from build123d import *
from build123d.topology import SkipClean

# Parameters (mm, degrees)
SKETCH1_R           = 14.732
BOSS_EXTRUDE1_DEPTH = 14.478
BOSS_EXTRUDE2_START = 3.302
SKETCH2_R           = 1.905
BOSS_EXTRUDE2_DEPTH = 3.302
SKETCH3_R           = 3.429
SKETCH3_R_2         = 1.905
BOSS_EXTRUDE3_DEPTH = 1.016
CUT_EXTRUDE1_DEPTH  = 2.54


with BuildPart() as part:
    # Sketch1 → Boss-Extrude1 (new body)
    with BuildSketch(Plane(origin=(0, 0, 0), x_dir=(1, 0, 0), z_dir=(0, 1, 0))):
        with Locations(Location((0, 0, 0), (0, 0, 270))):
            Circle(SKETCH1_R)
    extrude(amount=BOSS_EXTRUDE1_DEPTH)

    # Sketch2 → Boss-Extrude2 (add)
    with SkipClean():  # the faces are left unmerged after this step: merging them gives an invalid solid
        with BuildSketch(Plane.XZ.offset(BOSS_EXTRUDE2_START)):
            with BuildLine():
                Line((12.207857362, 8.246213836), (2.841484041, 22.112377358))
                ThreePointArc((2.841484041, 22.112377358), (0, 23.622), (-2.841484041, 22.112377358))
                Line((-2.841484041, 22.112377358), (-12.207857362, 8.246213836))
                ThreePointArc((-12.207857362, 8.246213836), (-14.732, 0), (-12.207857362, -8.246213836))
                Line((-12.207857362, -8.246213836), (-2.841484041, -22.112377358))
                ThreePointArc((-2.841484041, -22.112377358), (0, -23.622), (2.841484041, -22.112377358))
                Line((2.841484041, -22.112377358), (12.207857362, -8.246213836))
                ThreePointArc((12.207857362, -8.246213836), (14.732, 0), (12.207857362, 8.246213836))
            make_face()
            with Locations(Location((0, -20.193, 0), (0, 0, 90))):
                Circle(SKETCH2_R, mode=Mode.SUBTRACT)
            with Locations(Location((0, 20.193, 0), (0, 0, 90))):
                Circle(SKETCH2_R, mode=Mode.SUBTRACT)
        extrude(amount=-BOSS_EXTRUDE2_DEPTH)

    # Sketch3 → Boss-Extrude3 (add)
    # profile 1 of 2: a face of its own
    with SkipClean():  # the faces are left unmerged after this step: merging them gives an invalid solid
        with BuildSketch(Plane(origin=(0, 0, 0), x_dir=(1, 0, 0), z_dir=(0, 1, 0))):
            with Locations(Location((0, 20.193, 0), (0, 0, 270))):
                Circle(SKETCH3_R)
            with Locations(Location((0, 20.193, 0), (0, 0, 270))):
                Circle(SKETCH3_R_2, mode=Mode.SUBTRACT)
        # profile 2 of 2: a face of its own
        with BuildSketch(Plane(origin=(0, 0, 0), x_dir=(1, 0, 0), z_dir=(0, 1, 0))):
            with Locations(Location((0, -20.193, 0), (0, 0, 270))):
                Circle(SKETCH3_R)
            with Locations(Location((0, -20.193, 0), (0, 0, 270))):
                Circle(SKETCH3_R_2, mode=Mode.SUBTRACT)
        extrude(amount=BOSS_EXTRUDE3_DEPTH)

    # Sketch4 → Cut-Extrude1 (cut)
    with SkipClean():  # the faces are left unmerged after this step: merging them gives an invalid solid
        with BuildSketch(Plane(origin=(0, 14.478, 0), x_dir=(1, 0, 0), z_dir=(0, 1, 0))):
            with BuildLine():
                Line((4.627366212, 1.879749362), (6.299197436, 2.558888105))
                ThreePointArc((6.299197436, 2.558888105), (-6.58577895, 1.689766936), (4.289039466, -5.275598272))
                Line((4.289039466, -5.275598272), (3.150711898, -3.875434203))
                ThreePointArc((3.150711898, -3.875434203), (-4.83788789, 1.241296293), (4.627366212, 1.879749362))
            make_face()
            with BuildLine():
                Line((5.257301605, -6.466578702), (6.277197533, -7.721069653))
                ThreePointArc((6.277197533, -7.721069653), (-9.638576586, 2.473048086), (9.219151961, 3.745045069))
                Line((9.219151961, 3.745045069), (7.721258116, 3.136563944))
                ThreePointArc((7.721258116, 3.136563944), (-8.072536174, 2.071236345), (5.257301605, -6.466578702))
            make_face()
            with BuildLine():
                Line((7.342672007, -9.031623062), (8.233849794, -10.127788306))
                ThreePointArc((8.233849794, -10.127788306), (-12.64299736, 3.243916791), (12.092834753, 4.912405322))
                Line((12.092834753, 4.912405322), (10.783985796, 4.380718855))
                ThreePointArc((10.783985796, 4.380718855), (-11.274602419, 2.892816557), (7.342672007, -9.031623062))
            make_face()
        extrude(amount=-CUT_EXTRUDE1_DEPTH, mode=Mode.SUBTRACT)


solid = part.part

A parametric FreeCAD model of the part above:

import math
import FreeCAD as App
import Part
import Sketcher

V = App.Vector
Q = App.Units.Quantity

doc = App.newDocument("Part")
body = doc.addObject("PartDesign::Body", "Body")

# Sketch on XZ plane
sketch1 = doc.addObject("Sketcher::SketchObject", "Sketch")
body.addObject(sketch1)
sketch1.AttachmentSupport = (doc.XZ_Plane, [""])
sketch1.MapMode = "FlatFace"
sketch1.addGeometry(Part.Circle(V(0, 0, 0), V(0, 0, 1), 15), False)
sketch1.addConstraint([
    Sketcher.Constraint("Coincident", 0, 3, -1, 1),
    Sketcher.Constraint("Diameter", 0, Q("1.16 in")),
])
pad1 = doc.addObject("PartDesign::Pad", "Pad")
body.addObject(pad1)
pad1.Profile = sketch1
pad1.Length = Q("0.57 in")
pad1.Reversed = True

# Sketch on XZ plane
sketch2 = doc.addObject("Sketcher::SketchObject", "Sketch001")
body.addObject(sketch2)
sketch2.AttachmentSupport = (doc.XZ_Plane, [""])
sketch2.MapMode = "FlatFace"
sketch2.AttachmentOffset = App.Placement(V(0, 0, 0.13 * 25.4), App.Rotation())
sketch2.addGeometry([
    Part.LineSegment(V(12.2, 8.2, 0), V(2.8, 22.1, 0)),  # 0
    Part.ArcOfCircle(Part.Circle(V(0, 20.2, 0), V(0, 0, 1), 3.4), math.radians(34), math.radians(146)),  # 1
    Part.LineSegment(V(-2.8, 22.1, 0), V(-12.2, 8.2, 0)),  # 2
    Part.ArcOfCircle(Part.Circle(V(0, 0, 0), V(0, 0, 1), 14.7), math.radians(146), math.radians(214)),  # 3
    Part.LineSegment(V(-12.2, -8.2, 0), V(-2.8, -22.1, 0)),  # 4
    Part.ArcOfCircle(Part.Circle(V(0, -20.2, 0), V(0, 0, 1), 3.4), math.radians(-146), math.radians(-34)),  # 5
    Part.LineSegment(V(2.8, -22.1, 0), V(12.2, -8.2, 0)),  # 6
    Part.ArcOfCircle(Part.Circle(V(0, 0, 0), V(0, 0, 1), 14.7), math.radians(-34), math.radians(34)),  # 7
    Part.Circle(V(0, -20.2, 0), V(0, 0, 1), 1.9),  # 8
    Part.Circle(V(0, 20.2, 0), V(0, 0, 1), 1.9),  # 9
], False)
sketch2.addConstraint([
    Sketcher.Constraint("Tangent", 0, 2, 1, 1),
    Sketcher.Constraint("Tangent", 1, 2, 2, 1),
    Sketcher.Constraint("Tangent", 2, 2, 3, 1),
    Sketcher.Constraint("Tangent", 3, 2, 4, 1),
    Sketcher.Constraint("Tangent", 4, 2, 5, 1),
    Sketcher.Constraint("Tangent", 5, 2, 6, 1),
    Sketcher.Constraint("Tangent", 6, 2, 7, 1),
    Sketcher.Constraint("Tangent", 7, 2, 0, 1),
    Sketcher.Constraint("Coincident", 3, 3, -1, 1),
    Sketcher.Constraint("Coincident", 7, 3, -1, 1),
    Sketcher.Constraint("Coincident", 8, 3, 5, 3),
    Sketcher.Constraint("Coincident", 9, 3, 1, 3),
    Sketcher.Constraint("Equal", 1, 5),
    Sketcher.Constraint("Equal", 3, 7),
    Sketcher.Constraint("Equal", 8, 9),
    Sketcher.Constraint("Symmetric", 1, 3, 5, 3, -1, 1),
    Sketcher.Constraint("PointOnObject", 1, 3, -2),
    Sketcher.Constraint("Diameter", 8, Q("0.15 in")),
    Sketcher.Constraint("Radius", 3, Q("0.58 in")),
    Sketcher.Constraint("Radius", 1, Q("0.135 in")),
    Sketcher.Constraint("DistanceY", 5, 3, 1, 3, Q("1.59 in")),
])
pad2 = doc.addObject("PartDesign::Pad", "Pad001")
body.addObject(pad2)
pad2.Profile = sketch2
pad2.Length = Q("0.13 in")
pad2.Reversed = True

# Sketch on XZ plane
sketch3 = doc.addObject("Sketcher::SketchObject", "Sketch002")
body.addObject(sketch3)
sketch3.AttachmentSupport = (doc.XZ_Plane, [""])
sketch3.MapMode = "FlatFace"
sketch3.addGeometry([
    Part.Circle(V(0, -20.2, 0), V(0, 0, 1), 3.4),
    Part.Circle(V(0, -20.2, 0), V(0, 0, 1), 1.9),
    Part.Circle(V(0, 20.2, 0), V(0, 0, 1), 3.4),
    Part.Circle(V(0, 20.2, 0), V(0, 0, 1), 1.9),
], False)
sketch3.addConstraint([
    Sketcher.Constraint("Coincident", 1, 3, 0, 3),
    Sketcher.Constraint("Coincident", 3, 3, 2, 3),
    Sketcher.Constraint("Equal", 0, 2),
    Sketcher.Constraint("Equal", 1, 3),
    Sketcher.Constraint("Symmetric", 0, 3, 2, 3, -1, 1),
    Sketcher.Constraint("PointOnObject", 0, 3, -2),
    Sketcher.Constraint("Diameter", 0, Q("0.27 in")),
    Sketcher.Constraint("Diameter", 1, Q("0.15 in")),
    Sketcher.Constraint("DistanceY", 0, 3, 2, 3, Q("1.59 in")),
])
pad3 = doc.addObject("PartDesign::Pad", "Pad002")
body.addObject(pad3)
pad3.Profile = sketch3
pad3.Length = Q("0.04 in")
pad3.Reversed = True

# Sketch on XZ plane
sketch4 = doc.addObject("Sketcher::SketchObject", "Sketch003")
body.addObject(sketch4)
sketch4.AttachmentSupport = (doc.XZ_Plane, [""])
sketch4.MapMode = "FlatFace"
sketch4.AttachmentOffset = App.Placement(V(0, 0, -0.57 * 25.4), App.Rotation())
sketch4.addGeometry([
    Part.LineSegment(V(4.6, -1.9, 0), V(6.3, -2.6, 0)),  # 0
    Part.ArcOfCircle(Part.Circle(V(0, 0, 0), V(0, 0, 1), 6.8), math.radians(51), math.radians(338)),  # 1
    Part.LineSegment(V(4.3, 5.3, 0), V(3.2, 3.9, 0)),  # 2
    Part.ArcOfCircle(Part.Circle(V(0, 0, 0), V(0, 0, 1), 5), math.radians(51), math.radians(338)),  # 3
    Part.LineSegment(V(6.3, 7.7, 0), V(5.3, 6.5, 0)),  # 4
    Part.ArcOfCircle(Part.Circle(V(0, 0, 0), V(0, 0, 1), 8.3), math.radians(51), math.radians(338)),  # 5
    Part.LineSegment(V(7.7, -3.1, 0), V(9.2, -3.7, 0)),  # 6
    Part.ArcOfCircle(Part.Circle(V(0, 0, 0), V(0, 0, 1), 10), math.radians(51), math.radians(338)),  # 7
    Part.LineSegment(V(8.2, 10.1, 0), V(7.3, 9, 0)),  # 8
    Part.ArcOfCircle(Part.Circle(V(0, 0, 0), V(0, 0, 1), 11.6), math.radians(51), math.radians(338)),  # 9
    Part.LineSegment(V(10.8, -4.4, 0), V(12.1, -4.9, 0)),  # 10
    Part.ArcOfCircle(Part.Circle(V(0, 0, 0), V(0, 0, 1), 13.1), math.radians(51), math.radians(338)),  # 11
], False)
sketch4.addConstraint([
    Sketcher.Constraint("Coincident", 0, 2, 1, 2),
    Sketcher.Constraint("Coincident", 1, 1, 2, 1),
    Sketcher.Constraint("Coincident", 2, 2, 3, 1),
    Sketcher.Constraint("Coincident", 3, 2, 0, 1),
    Sketcher.Constraint("Coincident", 4, 2, 5, 1),
    Sketcher.Constraint("Coincident", 5, 2, 6, 1),
    Sketcher.Constraint("Coincident", 6, 2, 7, 2),
    Sketcher.Constraint("Coincident", 7, 1, 4, 1),
    Sketcher.Constraint("Coincident", 8, 2, 9, 1),
    Sketcher.Constraint("Coincident", 9, 2, 10, 1),
    Sketcher.Constraint("Coincident", 10, 2, 11, 2),
    Sketcher.Constraint("Coincident", 11, 1, 8, 1),
    Sketcher.Constraint("Coincident", 1, 3, -1, 1),
    Sketcher.Constraint("Coincident", 3, 3, -1, 1),
    Sketcher.Constraint("Coincident", 5, 3, -1, 1),
    Sketcher.Constraint("Coincident", 7, 3, -1, 1),
    Sketcher.Constraint("Coincident", 9, 3, -1, 1),
    Sketcher.Constraint("Coincident", 11, 3, -1, 1),
    Sketcher.Constraint("Parallel", 2, 4),
    Sketcher.Constraint("Parallel", 0, 6),
    Sketcher.Constraint("Parallel", 4, 8),
    Sketcher.Constraint("Parallel", 6, 10),
    Sketcher.Constraint("DistanceX", -1, 1, 0, 2, Q("0.2479999 in")),
    Sketcher.Constraint("Radius", 5, Q("8.334018 mm")),
    Sketcher.Constraint("Radius", 1, Q("6.799103 mm")),
    Sketcher.Constraint("Radius", 3, Q("4.994595 mm")),
    Sketcher.Constraint("Radius", 7, Q("9.950785 mm")),
    Sketcher.Constraint("Radius", 9, Q("11.639804 mm")),
    Sketcher.Constraint("Radius", 11, Q("13.052524 mm")),
    Sketcher.Constraint("DistanceY", -1, 1, 1, 1, Q("5.275598 mm")),
    Sketcher.Constraint("DistanceX", -1, 1, 4, 2, Q("5.257302 mm")),
    Sketcher.Constraint("DistanceX", -1, 1, 2, 2, Q("3.150712 mm")),
    Sketcher.Constraint("DistanceY", 3, 2, -1, 1, Q("1.879749 mm")),
    Sketcher.Constraint("DistanceX", -1, 1, 5, 2, Q("7.721258 mm")),
    Sketcher.Constraint("DistanceY", 9, 2, -1, 1, Q("4.380719 mm")),
    Sketcher.Constraint("DistanceX", -1, 1, 11, 1, Q("8.23385 mm")),
])
pocket1 = doc.addObject("PartDesign::Pocket", "Pocket")
body.addObject(pocket1)
pocket1.Profile = sketch4
pocket1.Length = Q("0.1 in")
pocket1.Reversed = True

doc.recompute()
